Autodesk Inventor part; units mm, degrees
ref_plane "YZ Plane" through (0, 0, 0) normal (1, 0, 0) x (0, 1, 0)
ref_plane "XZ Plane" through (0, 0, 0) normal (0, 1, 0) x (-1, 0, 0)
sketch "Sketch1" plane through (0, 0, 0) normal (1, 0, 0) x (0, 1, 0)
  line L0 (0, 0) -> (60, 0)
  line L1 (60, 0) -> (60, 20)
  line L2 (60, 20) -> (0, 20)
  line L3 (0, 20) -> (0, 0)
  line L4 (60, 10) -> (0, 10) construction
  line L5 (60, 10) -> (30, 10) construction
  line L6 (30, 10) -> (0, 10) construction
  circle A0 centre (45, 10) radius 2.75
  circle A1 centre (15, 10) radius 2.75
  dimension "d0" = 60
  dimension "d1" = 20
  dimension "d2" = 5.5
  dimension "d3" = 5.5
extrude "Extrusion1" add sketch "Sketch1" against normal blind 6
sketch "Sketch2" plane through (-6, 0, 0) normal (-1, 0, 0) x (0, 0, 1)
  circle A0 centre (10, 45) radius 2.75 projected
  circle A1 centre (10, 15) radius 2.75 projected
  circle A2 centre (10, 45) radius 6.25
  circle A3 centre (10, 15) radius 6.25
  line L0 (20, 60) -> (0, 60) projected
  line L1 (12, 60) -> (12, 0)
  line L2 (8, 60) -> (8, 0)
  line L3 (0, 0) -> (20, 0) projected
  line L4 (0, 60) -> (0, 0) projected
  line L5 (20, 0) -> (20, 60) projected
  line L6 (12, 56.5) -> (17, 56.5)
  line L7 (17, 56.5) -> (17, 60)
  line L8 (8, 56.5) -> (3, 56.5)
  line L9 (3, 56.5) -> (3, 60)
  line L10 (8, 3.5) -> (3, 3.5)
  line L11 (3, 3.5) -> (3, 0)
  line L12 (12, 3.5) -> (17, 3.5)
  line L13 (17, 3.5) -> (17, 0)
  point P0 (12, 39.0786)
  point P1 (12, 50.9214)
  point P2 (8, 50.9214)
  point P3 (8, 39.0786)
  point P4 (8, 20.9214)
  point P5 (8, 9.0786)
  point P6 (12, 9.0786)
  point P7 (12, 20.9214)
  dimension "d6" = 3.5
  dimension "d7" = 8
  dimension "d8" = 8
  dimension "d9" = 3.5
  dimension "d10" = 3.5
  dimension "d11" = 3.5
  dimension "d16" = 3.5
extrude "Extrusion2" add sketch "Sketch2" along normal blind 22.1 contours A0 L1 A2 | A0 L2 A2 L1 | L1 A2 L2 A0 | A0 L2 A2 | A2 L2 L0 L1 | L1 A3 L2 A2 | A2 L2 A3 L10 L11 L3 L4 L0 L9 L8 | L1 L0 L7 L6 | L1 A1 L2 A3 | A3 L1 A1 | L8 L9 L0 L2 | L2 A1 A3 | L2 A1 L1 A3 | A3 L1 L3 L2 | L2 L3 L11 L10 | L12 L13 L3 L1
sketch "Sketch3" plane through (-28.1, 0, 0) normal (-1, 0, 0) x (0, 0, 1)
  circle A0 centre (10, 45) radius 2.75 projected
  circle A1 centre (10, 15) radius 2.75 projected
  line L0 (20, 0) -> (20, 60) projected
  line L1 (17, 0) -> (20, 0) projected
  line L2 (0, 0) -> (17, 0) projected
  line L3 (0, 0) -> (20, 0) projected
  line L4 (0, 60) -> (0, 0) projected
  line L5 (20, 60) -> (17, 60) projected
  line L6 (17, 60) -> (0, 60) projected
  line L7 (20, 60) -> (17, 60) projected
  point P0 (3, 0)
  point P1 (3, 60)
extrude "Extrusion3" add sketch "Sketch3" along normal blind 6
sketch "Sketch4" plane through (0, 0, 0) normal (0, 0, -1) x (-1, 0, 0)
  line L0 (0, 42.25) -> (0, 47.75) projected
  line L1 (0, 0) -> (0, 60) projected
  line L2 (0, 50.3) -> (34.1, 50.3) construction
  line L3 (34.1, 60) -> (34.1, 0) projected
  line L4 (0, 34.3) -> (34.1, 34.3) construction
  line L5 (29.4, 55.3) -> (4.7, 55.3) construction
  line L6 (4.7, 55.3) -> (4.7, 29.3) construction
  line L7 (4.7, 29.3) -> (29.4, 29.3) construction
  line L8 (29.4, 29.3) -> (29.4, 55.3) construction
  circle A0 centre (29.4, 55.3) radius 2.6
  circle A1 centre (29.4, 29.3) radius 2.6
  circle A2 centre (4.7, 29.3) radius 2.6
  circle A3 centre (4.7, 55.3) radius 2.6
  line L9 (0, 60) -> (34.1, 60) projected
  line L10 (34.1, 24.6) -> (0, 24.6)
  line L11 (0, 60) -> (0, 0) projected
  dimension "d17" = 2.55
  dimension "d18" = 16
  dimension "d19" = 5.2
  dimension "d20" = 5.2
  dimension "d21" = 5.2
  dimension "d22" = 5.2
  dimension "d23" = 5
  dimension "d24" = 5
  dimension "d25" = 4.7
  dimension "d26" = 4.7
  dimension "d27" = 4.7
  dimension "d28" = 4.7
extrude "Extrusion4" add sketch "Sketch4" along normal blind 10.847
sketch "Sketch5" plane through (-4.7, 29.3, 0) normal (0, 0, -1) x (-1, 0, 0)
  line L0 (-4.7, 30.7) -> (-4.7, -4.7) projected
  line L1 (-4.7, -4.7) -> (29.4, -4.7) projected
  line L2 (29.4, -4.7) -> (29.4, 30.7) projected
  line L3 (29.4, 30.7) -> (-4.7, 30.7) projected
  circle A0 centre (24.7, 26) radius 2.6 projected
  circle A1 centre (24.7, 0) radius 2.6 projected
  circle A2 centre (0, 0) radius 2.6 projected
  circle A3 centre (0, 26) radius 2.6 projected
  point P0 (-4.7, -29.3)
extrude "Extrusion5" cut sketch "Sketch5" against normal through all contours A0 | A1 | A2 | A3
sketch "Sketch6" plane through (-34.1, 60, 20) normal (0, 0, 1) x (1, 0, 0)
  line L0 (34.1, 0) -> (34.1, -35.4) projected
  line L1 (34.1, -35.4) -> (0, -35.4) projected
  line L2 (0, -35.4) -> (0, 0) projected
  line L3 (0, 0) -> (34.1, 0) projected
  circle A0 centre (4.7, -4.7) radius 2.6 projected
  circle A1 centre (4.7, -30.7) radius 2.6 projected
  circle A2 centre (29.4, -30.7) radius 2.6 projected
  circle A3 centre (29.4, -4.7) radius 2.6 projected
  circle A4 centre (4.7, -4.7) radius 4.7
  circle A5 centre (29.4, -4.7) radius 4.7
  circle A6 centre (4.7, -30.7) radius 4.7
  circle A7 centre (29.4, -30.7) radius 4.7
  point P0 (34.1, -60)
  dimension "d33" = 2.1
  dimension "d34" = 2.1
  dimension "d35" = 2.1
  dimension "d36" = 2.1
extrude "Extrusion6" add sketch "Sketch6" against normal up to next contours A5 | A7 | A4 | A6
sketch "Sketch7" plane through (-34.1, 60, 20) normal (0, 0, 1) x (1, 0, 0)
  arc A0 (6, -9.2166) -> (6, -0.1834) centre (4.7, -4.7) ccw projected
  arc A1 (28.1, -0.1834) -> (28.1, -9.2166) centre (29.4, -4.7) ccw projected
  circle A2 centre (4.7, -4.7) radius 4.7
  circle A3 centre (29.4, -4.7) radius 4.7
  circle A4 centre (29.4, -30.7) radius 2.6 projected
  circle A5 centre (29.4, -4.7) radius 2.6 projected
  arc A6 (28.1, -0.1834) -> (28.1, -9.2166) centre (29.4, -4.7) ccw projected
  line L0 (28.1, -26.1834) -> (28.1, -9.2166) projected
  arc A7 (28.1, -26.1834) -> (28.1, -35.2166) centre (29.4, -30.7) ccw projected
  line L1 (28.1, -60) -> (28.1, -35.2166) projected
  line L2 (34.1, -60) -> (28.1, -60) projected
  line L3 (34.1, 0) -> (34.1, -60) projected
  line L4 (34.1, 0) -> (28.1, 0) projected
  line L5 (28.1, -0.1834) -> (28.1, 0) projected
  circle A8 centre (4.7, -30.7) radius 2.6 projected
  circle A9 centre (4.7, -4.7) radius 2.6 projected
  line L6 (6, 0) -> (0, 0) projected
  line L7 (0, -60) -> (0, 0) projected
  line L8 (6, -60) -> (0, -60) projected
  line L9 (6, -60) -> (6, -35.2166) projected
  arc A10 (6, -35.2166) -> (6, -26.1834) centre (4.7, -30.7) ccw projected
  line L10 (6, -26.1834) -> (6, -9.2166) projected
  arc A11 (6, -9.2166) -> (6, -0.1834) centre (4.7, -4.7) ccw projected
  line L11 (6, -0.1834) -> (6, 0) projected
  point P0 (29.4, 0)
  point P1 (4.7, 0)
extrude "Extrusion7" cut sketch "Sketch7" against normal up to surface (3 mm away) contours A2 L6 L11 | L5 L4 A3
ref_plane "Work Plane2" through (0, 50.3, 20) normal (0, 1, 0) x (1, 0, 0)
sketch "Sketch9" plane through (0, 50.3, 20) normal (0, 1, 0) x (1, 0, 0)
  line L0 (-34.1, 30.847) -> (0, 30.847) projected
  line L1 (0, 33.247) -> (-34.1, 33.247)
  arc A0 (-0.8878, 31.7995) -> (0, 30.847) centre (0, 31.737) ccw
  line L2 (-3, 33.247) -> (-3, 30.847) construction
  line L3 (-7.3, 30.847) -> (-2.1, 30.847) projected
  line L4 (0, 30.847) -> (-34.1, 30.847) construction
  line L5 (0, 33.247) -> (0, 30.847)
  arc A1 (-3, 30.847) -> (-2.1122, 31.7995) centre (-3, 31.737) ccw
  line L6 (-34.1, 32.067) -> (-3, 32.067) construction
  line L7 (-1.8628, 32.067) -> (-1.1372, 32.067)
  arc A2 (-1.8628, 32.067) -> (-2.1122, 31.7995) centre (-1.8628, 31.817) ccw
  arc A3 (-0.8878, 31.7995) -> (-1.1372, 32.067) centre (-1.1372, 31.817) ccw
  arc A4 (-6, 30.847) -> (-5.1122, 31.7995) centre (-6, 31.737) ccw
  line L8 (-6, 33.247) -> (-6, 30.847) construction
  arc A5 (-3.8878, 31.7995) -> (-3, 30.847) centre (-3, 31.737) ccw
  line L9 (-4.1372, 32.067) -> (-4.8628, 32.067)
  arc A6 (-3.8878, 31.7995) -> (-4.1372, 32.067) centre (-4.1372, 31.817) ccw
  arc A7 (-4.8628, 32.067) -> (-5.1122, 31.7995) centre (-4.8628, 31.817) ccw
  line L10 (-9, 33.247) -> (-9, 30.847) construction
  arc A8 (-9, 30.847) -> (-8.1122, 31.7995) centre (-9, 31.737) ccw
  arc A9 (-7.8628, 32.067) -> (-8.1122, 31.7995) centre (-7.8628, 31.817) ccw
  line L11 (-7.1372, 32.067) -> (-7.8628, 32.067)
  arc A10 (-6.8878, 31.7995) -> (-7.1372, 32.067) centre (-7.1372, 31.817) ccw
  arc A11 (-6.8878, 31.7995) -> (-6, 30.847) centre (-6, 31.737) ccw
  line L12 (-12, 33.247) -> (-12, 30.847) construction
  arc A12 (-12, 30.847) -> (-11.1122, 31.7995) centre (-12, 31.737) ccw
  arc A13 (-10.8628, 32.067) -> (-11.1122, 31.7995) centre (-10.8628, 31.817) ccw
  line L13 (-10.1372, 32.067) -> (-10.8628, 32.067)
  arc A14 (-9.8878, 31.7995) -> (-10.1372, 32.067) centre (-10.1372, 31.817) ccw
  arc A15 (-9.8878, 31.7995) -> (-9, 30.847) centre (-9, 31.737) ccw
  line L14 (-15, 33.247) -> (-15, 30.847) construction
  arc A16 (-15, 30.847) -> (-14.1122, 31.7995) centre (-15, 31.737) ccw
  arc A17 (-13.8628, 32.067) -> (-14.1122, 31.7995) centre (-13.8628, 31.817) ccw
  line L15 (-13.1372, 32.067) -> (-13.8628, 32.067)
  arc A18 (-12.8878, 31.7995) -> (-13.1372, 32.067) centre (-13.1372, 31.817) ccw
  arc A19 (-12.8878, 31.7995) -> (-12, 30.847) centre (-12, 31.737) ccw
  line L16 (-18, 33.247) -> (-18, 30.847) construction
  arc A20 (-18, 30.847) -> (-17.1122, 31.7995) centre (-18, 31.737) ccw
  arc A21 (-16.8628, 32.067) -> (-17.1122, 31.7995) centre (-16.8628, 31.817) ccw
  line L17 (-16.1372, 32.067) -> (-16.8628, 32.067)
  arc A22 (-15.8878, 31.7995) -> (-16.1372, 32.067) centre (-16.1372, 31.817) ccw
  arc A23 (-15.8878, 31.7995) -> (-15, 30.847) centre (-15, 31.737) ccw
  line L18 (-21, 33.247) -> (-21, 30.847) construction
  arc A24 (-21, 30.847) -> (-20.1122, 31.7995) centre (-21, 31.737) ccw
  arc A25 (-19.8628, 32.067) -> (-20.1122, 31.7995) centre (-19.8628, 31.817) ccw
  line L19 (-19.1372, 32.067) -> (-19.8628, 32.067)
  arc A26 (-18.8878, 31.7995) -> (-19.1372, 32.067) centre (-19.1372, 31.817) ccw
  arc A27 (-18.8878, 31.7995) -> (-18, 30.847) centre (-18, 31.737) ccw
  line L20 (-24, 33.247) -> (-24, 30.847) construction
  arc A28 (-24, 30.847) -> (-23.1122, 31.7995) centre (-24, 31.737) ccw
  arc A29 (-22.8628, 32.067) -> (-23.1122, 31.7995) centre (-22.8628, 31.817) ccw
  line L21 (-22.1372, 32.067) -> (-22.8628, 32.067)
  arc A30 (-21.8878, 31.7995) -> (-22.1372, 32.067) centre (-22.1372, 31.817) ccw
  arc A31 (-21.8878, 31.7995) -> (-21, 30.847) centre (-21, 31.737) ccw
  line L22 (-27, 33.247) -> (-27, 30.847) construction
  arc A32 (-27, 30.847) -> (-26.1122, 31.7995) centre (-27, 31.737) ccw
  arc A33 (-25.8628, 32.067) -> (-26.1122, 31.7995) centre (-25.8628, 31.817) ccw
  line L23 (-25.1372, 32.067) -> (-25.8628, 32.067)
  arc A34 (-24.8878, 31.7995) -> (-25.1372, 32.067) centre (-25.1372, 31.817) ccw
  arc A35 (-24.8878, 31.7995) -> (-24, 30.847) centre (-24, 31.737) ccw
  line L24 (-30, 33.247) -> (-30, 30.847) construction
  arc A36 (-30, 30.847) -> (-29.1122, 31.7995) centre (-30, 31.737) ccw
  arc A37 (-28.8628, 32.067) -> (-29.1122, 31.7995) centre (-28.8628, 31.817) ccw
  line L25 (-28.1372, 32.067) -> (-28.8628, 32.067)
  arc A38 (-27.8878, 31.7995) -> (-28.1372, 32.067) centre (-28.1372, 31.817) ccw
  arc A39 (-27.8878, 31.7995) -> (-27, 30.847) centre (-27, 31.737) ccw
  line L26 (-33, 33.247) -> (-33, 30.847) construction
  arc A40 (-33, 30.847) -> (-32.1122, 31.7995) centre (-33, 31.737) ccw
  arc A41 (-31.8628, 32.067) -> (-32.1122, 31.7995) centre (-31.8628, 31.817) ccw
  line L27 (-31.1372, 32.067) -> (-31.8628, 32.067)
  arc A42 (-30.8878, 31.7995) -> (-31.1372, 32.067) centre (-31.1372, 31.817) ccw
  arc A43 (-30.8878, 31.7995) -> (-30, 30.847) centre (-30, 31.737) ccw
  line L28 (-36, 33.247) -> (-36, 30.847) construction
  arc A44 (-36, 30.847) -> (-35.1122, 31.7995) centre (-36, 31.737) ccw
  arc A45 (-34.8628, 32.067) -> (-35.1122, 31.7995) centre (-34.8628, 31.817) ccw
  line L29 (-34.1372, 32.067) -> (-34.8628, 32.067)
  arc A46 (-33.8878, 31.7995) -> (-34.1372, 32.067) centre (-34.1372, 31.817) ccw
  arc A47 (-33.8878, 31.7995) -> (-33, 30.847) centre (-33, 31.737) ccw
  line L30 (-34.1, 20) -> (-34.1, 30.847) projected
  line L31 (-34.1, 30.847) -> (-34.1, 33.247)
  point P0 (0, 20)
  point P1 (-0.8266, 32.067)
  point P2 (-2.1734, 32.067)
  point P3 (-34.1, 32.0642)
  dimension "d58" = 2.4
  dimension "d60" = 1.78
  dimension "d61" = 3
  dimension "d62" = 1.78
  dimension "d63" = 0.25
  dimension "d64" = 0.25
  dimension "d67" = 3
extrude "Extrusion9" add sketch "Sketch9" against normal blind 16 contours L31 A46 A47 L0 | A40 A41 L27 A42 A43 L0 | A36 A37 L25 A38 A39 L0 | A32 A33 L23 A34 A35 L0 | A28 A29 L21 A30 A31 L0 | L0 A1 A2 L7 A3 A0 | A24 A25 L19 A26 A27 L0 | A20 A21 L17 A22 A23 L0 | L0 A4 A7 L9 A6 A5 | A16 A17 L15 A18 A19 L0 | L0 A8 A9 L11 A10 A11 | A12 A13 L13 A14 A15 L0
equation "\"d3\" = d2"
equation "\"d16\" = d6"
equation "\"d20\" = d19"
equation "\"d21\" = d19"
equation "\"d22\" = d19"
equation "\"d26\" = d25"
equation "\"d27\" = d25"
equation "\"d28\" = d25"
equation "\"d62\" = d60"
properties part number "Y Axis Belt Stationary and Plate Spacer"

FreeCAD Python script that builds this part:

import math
import FreeCAD as App
import Part
import Sketcher
Q = App.Units.Quantity


def add_polygon(sketch, points):
    """Adds a closed chain of lines whose ends are joined by coincident constraints."""
    first, n = sketch.GeometryCount, len(points)
    for a, b in zip(points, points[1:] + points[:1]):
        sketch.addGeometry(Part.LineSegment(App.Vector(*a, 0), App.Vector(*b, 0)), False)
    for i in range(n):
        sketch.addConstraint(Sketcher.Constraint("Coincident", first + i, 2, first + (i + 1) % n, 1))

doc = App.newDocument("Part")
body = doc.addObject("PartDesign::Body", "Body")

sketch1 = body.newObject("Sketcher::SketchObject", "Sketch")
sketch1.AttachmentSupport = (doc.getObject("YZ_Plane"), [""])
sketch1.MapMode = "FlatFace"
add_polygon(sketch1, [(0, 20), (0, 0), (60, 0), (60, 20)])
sketch1.addGeometry(Part.Circle(App.Vector(15, 10, 0), App.Vector(0, 0, 1), 2.75), False)
sketch1.addGeometry(Part.Circle(App.Vector(45, 10, 0), App.Vector(0, 0, 1), 2.75), False)
sketch1.addConstraint([
    Sketcher.Constraint("Vertical", 0),
    Sketcher.Constraint("Horizontal", 1),
    Sketcher.Constraint("Vertical", 2),
    Sketcher.Constraint("Horizontal", 3),
    Sketcher.Constraint("Coincident", 0, 2, -1, 1),
    Sketcher.Constraint("Equal", 4, 5),
    Sketcher.Constraint("Horizontal", 4, 3, 5, 3),
    Sketcher.Constraint("Diameter", 4, Q("5.5 mm")),
    Sketcher.Constraint("DistanceX", 1, 1, 1, 2, Q("60 mm")),
    Sketcher.Constraint("DistanceY", 0, 2, 0, 1, Q("20 mm")),
    Sketcher.Constraint("DistanceX", -1, 1, 4, 3, Q("15 mm")),
    Sketcher.Constraint("DistanceY", -1, 1, 4, 3, Q("10 mm")),
    Sketcher.Constraint("DistanceX", -1, 1, 5, 3, Q("45 mm")),
])
pad1 = body.newObject("PartDesign::Pad", "Pad")
pad1.Profile = sketch1
pad1.Length = 6
pad1.Reversed = True

sketch2 = body.newObject("Sketcher::SketchObject", "Sketch001")
sketch2.AttachmentSupport = (doc.getObject("YZ_Plane"), [""])
sketch2.MapMode = "FlatFace"
sketch2.AttachmentOffset = App.Placement(App.Vector(0, 0, -6), App.Rotation())
sketch2.addGeometry([
    Part.LineSegment(App.Vector(50.92136, 12, 0), App.Vector(56.5, 12, 0)),
    Part.LineSegment(App.Vector(56.5, 12, 0), App.Vector(56.5, 17, 0)),
    Part.LineSegment(App.Vector(56.5, 17, 0), App.Vector(60, 17, 0)),
    Part.LineSegment(App.Vector(60, 17, 0), App.Vector(60, 0, 0)),
    Part.LineSegment(App.Vector(60, 0, 0), App.Vector(0, 0, 0)),
    Part.LineSegment(App.Vector(0, 0, 0), App.Vector(0, 17, 0)),
    Part.LineSegment(App.Vector(0, 17, 0), App.Vector(3.5, 17, 0)),
    Part.LineSegment(App.Vector(3.5, 17, 0), App.Vector(3.5, 12, 0)),
    Part.LineSegment(App.Vector(3.5, 12, 0), App.Vector(9.07864, 12, 0)),
    Part.ArcOfCircle(Part.Circle(App.Vector(15, 10, 0), App.Vector(0, 0, 1), 6.25), math.radians(18.662925), math.radians(161.337075)),
    Part.LineSegment(App.Vector(20.92136, 12, 0), App.Vector(39.07864, 12, 0)),
    Part.ArcOfCircle(Part.Circle(App.Vector(45, 10, 0), App.Vector(0, 0, 1), 6.25), math.radians(18.662925), math.radians(161.337075)),
    Part.Circle(App.Vector(45, 10, 0), App.Vector(0, 0, 1), 2.75),
    Part.Circle(App.Vector(15, 10, 0), App.Vector(0, 0, 1), 2.75),
], False)
sketch2.addConstraint([
    Sketcher.Constraint("Coincident", 0, 2, 1, 1),
    Sketcher.Constraint("Coincident", 1, 2, 2, 1),
    Sketcher.Constraint("Coincident", 2, 2, 3, 1),
    Sketcher.Constraint("Coincident", 3, 2, 4, 1),
    Sketcher.Constraint("Coincident", 4, 2, 5, 1),
    Sketcher.Constraint("Coincident", 5, 2, 6, 1),
    Sketcher.Constraint("Coincident", 6, 2, 7, 1),
    Sketcher.Constraint("Coincident", 7, 2, 8, 1),
    Sketcher.Constraint("Coincident", 8, 2, 9, 2),
    Sketcher.Constraint("Coincident", 9, 1, 10, 1),
    Sketcher.Constraint("Coincident", 10, 2, 11, 2),
    Sketcher.Constraint("Coincident", 11, 1, 0, 1),
    Sketcher.Constraint("Horizontal", 0),
    Sketcher.Constraint("Vertical", 1),
    Sketcher.Constraint("Horizontal", 2),
    Sketcher.Constraint("Vertical", 3),
    Sketcher.Constraint("Horizontal", 4),
    Sketcher.Constraint("Vertical", 5),
    Sketcher.Constraint("Horizontal", 6),
    Sketcher.Constraint("Vertical", 7),
    Sketcher.Constraint("Horizontal", 8),
    Sketcher.Constraint("Horizontal", 10),
    Sketcher.Constraint("Coincident", 4, 2, -1, 1),
    Sketcher.Constraint("Coincident", 12, 3, 11, 3),
    Sketcher.Constraint("Coincident", 13, 3, 9, 3),
    Sketcher.Constraint("Equal", 9, 11),
    Sketcher.Constraint("Equal", 12, 13),
    Sketcher.Constraint("Horizontal", 9, 3, 11, 3),
    Sketcher.Constraint("Horizontal", 2, 2, 5, 2),
    Sketcher.Constraint("Horizontal", 0, 2, 7, 2),
    Sketcher.Constraint("Horizontal", 8, 2, 9, 1),
    Sketcher.Constraint("Equal", 2, 6),
    Sketcher.Constraint("Equal", 0, 8),
    Sketcher.Constraint("DistanceX", 2, 1, 2, 2, Q("3.5 mm")),
    Sketcher.Constraint("Diameter", 12, Q("5.5 mm")),
    Sketcher.Constraint("DistanceX", 4, 2, 4, 1, Q("60 mm")),
    Sketcher.Constraint("DistanceY", 1, 1, 1, 2, Q("5 mm")),
    Sketcher.Constraint("DistanceY", 3, 2, 3, 1, Q("17 mm")),
    Sketcher.Constraint("Radius", 9, Q("6.25 mm")),
    Sketcher.Constraint("DistanceX", -1, 1, 9, 3, Q("15 mm")),
    Sketcher.Constraint("DistanceY", -1, 1, 9, 3, Q("10 mm")),
])
pad2 = body.newObject("PartDesign::Pad", "Pad001")
pad2.Profile = sketch2
pad2.Length = 22.1
pad2.Reversed = True

sketch3 = body.newObject("Sketcher::SketchObject", "Sketch002")
sketch3.AttachmentSupport = (doc.getObject("YZ_Plane"), [""])
sketch3.MapMode = "FlatFace"
sketch3.AttachmentOffset = App.Placement(App.Vector(0, 0, -28.1), App.Rotation())
add_polygon(sketch3, [(0, 0), (0, 20), (60, 20), (60, 0)])
sketch3.addGeometry(Part.Circle(App.Vector(15, 10, 0), App.Vector(0, 0, 1), 2.75), False)
sketch3.addGeometry(Part.Circle(App.Vector(45, 10, 0), App.Vector(0, 0, 1), 2.75), False)
sketch3.addConstraint([
    Sketcher.Constraint("Vertical", 0),
    Sketcher.Constraint("Horizontal", 1),
    Sketcher.Constraint("Vertical", 2),
    Sketcher.Constraint("Horizontal", 3),
    Sketcher.Constraint("Coincident", 3, 2, -1, 1),
    Sketcher.Constraint("Equal", 4, 5),
    Sketcher.Constraint("Horizontal", 4, 3, 5, 3),
    Sketcher.Constraint("Diameter", 4, Q("5.5 mm")),
    Sketcher.Constraint("DistanceX", 1, 1, 1, 2, Q("60 mm")),
    Sketcher.Constraint("DistanceY", 0, 1, 0, 2, Q("20 mm")),
    Sketcher.Constraint("DistanceX", -1, 1, 4, 3, Q("15 mm")),
    Sketcher.Constraint("DistanceY", -1, 1, 4, 3, Q("10 mm")),
    Sketcher.Constraint("DistanceX", -1, 1, 5, 3, Q("45 mm")),
])
pad3 = body.newObject("PartDesign::Pad", "Pad002")
pad3.Profile = sketch3
pad3.Length = 6
pad3.Reversed = True

sketch4 = body.newObject("Sketcher::SketchObject", "Sketch003")
sketch4.AttachmentSupport = (doc.getObject("XY_Plane"), [""])
sketch4.MapMode = "FlatFace"
add_polygon(sketch4, [(0, 60), (0, 24.6), (-34.1, 24.6), (-34.1, 60)])
sketch4.addGeometry(Part.Circle(App.Vector(-4.7, 29.3, 0), App.Vector(0, 0, 1), 2.6), False)
sketch4.addGeometry(Part.Circle(App.Vector(-29.4, 29.3, 0), App.Vector(0, 0, 1), 2.6), False)
sketch4.addGeometry(Part.Circle(App.Vector(-4.7, 55.3, 0), App.Vector(0, 0, 1), 2.6), False)
sketch4.addGeometry(Part.Circle(App.Vector(-29.4, 55.3, 0), App.Vector(0, 0, 1), 2.6), False)
sketch4.addConstraint([
    Sketcher.Constraint("Vertical", 0),
    Sketcher.Constraint("Horizontal", 1),
    Sketcher.Constraint("Vertical", 2),
    Sketcher.Constraint("Horizontal", 3),
    Sketcher.Constraint("Equal", 4, 5),
    Sketcher.Constraint("Equal", 5, 6),
    Sketcher.Constraint("Equal", 6, 7),
    Sketcher.Constraint("PointOnObject", 0, 2, -2),
    Sketcher.Constraint("Horizontal", 4, 3, 5, 3),
    Sketcher.Constraint("Horizontal", 6, 3, 7, 3),
    Sketcher.Constraint("Vertical", 4, 3, 6, 3),
    Sketcher.Constraint("Vertical", 5, 3, 7, 3),
    Sketcher.Constraint("Diameter", 4, Q("5.2 mm")),
    Sketcher.Constraint("DistanceX", 4, 3, -1, 1, Q("4.7 mm")),
    Sketcher.Constraint("DistanceY", 0, 2, 4, 3, Q("4.7 mm")),
    Sketcher.Constraint("DistanceX", 1, 2, 5, 3, Q("4.7 mm")),
    Sketcher.Constraint("DistanceY", 7, 3, 2, 2, Q("4.7 mm")),
    Sketcher.Constraint("DistanceX", 1, 2, 1, 1, Q("34.1 mm")),
    Sketcher.Constraint("DistanceY", 0, 2, 0, 1, Q("35.4 mm")),
    Sketcher.Constraint("DistanceY", -1, 1, 2, 2, Q("60 mm")),
])
pad4 = body.newObject("PartDesign::Pad", "Pad003")
pad4.Profile = sketch4
pad4.Length = 10.847
pad4.Reversed = True

sketch5 = body.newObject("Sketcher::SketchObject", "Sketch004")
sketch5.AttachmentSupport = (doc.getObject("XY_Plane"), [""])
sketch5.MapMode = "FlatFace"
sketch5.addGeometry([
    Part.Circle(App.Vector(-29.4, 55.3, 0), App.Vector(0, 0, 1), 2.6),
    Part.Circle(App.Vector(-29.4, 29.3, 0), App.Vector(0, 0, 1), 2.6),
    Part.Circle(App.Vector(-4.7, 29.3, 0), App.Vector(0, 0, 1), 2.6),
    Part.Circle(App.Vector(-4.7, 55.3, 0), App.Vector(0, 0, 1), 2.6),
], False)
sketch5.addConstraint([
    Sketcher.Constraint("Equal", 0, 1),
    Sketcher.Constraint("Equal", 1, 2),
    Sketcher.Constraint("Equal", 2, 3),
    Sketcher.Constraint("Horizontal", 1, 3, 2, 3),
    Sketcher.Constraint("Horizontal", 0, 3, 3, 3),
    Sketcher.Constraint("Vertical", 0, 3, 1, 3),
    Sketcher.Constraint("Vertical", 2, 3, 3, 3),
    Sketcher.Constraint("Diameter", 0, Q("5.2 mm")),
    Sketcher.Constraint("DistanceY", 1, 3, 0, 3, Q("26 mm")),
    Sketcher.Constraint("DistanceX", 0, 3, -1, 1, Q("29.4 mm")),
    Sketcher.Constraint("DistanceY", -1, 1, 0, 3, Q("55.3 mm")),
    Sketcher.Constraint("DistanceX", 2, 3, -1, 1, Q("4.7 mm")),
])
pocket1 = body.newObject("PartDesign::Pocket", "Pocket")
pocket1.Profile = sketch5
pocket1.Type = "ThroughAll"
pocket1.Reversed = True

sketch6 = body.newObject("Sketcher::SketchObject", "Sketch005")
sketch6.AttachmentSupport = (doc.getObject("XY_Plane"), [""])
sketch6.MapMode = "FlatFace"
sketch6.AttachmentOffset = App.Placement(App.Vector(0, 0, 20), App.Rotation())
sketch6.addGeometry([
    Part.Circle(App.Vector(-4.7, 55.3, 0), App.Vector(0, 0, 1), 4.7),
    Part.Circle(App.Vector(-4.7, 55.3, 0), App.Vector(0, 0, 1), 2.6),
    Part.Circle(App.Vector(-4.7, 29.3, 0), App.Vector(0, 0, 1), 4.7),
    Part.Circle(App.Vector(-4.7, 29.3, 0), App.Vector(0, 0, 1), 2.6),
    Part.Circle(App.Vector(-29.4, 55.3, 0), App.Vector(0, 0, 1), 4.7),
    Part.Circle(App.Vector(-29.4, 55.3, 0), App.Vector(0, 0, 1), 2.6),
    Part.Circle(App.Vector(-29.4, 29.3, 0), App.Vector(0, 0, 1), 4.7),
    Part.Circle(App.Vector(-29.4, 29.3, 0), App.Vector(0, 0, 1), 2.6),
], False)
sketch6.addConstraint([
    Sketcher.Constraint("Coincident", 1, 3, 0, 3),
    Sketcher.Constraint("Coincident", 3, 3, 2, 3),
    Sketcher.Constraint("Coincident", 5, 3, 4, 3),
    Sketcher.Constraint("Coincident", 7, 3, 6, 3),
    Sketcher.Constraint("Equal", 0, 2),
    Sketcher.Constraint("Equal", 1, 3),
    Sketcher.Constraint("Equal", 2, 4),
    Sketcher.Constraint("Equal", 3, 5),
    Sketcher.Constraint("Equal", 4, 6),
    Sketcher.Constraint("Equal", 5, 7),
    Sketcher.Constraint("Horizontal", 1, 3, 4, 3),
    Sketcher.Constraint("Horizontal", 3, 3, 6, 3),
    Sketcher.Constraint("Vertical", 1, 3, 2, 3),
    Sketcher.Constraint("Vertical", 5, 3, 6, 3),
    Sketcher.Constraint("Diameter", 0, Q("9.4 mm")),
    Sketcher.Constraint("Diameter", 1, Q("5.2 mm")),
    Sketcher.Constraint("DistanceY", 2, 3, 0, 3, Q("26 mm")),
    Sketcher.Constraint("DistanceX", 0, 3, -1, 1, Q("4.7 mm")),
    Sketcher.Constraint("DistanceY", -1, 1, 0, 3, Q("55.3 mm")),
    Sketcher.Constraint("DistanceX", 4, 3, -1, 1, Q("29.4 mm")),
])
pad5 = body.newObject("PartDesign::Pad", "Pad004")
pad5.Profile = sketch6
pad5.Length = 8
pad5.Reversed = True

sketch7 = body.newObject("Sketcher::SketchObject", "Sketch006")
sketch7.AttachmentSupport = (doc.getObject("XY_Plane"), [""])
sketch7.MapMode = "FlatFace"
sketch7.AttachmentOffset = App.Placement(App.Vector(0, 0, 20), App.Rotation())
sketch7.addGeometry([
    Part.ArcOfCircle(Part.Circle(App.Vector(-29.4, 55.3, 0), App.Vector(0, 0, 1), 4.7), math.radians(73.942746), math.radians(90)),
    Part.LineSegment(App.Vector(-28.1, 59.8166, 0), App.Vector(-28.1, 60, 0)),
    Part.LineSegment(App.Vector(-28.1, 60, 0), App.Vector(-29.4, 60, 0)),
    Part.LineSegment(App.Vector(-6, 60, 0), App.Vector(-6, 59.8166, 0)),
    Part.ArcOfCircle(Part.Circle(App.Vector(-4.7, 55.3, 0), App.Vector(0, 0, 1), 4.7), math.radians(90), math.radians(106.057254)),
    Part.LineSegment(App.Vector(-4.7, 60, 0), App.Vector(-6, 60, 0)),
], False)
sketch7.addConstraint([
    Sketcher.Constraint("Coincident", 0, 1, 1, 1),
    Sketcher.Constraint("Coincident", 1, 2, 2, 1),
    Sketcher.Constraint("Tangent", 2, 2, 0, 2),
    Sketcher.Constraint("Coincident", 3, 2, 4, 2),
    Sketcher.Constraint("Tangent", 4, 1, 5, 1),
    Sketcher.Constraint("Coincident", 5, 2, 3, 1),
    Sketcher.Constraint("Vertical", 1),
    Sketcher.Constraint("Horizontal", 2),
    Sketcher.Constraint("Vertical", 3),
    Sketcher.Constraint("Horizontal", 5),
    Sketcher.Constraint("Equal", 0, 4),
    Sketcher.Constraint("Horizontal", 0, 3, 4, 3),
    Sketcher.Constraint("Horizontal", 0, 1, 3, 2),
    Sketcher.Constraint("Radius", 0, Q("4.7 mm")),
    Sketcher.Constraint("DistanceX", 2, 2, 2, 1, Q("1.3 mm")),
    Sketcher.Constraint("DistanceY", -1, 1, 1, 2, Q("60 mm")),
    Sketcher.Constraint("DistanceX", 3, 2, -1, 1, Q("6 mm")),
    Sketcher.Constraint("DistanceX", 0, 3, -1, 1, Q("29.4 mm")),
])
pocket2 = body.newObject("PartDesign::Pocket", "Pocket001")
pocket2.Profile = sketch7
pocket2.Length = 3

sketch8 = body.newObject("Sketcher::SketchObject", "Sketch007")
sketch8.AttachmentSupport = (doc.getObject("XZ_Plane"), [""])
sketch8.MapMode = "FlatFace"
sketch8.AttachmentOffset = App.Placement(App.Vector(0, 0, -50.3), App.Rotation())
sketch8.addGeometry([
    Part.LineSegment(App.Vector(-34.1, -12.06422, 0), App.Vector(-34.1, -10.847, 0)),
    Part.LineSegment(App.Vector(-34.1, -10.847, 0), App.Vector(-33, -10.847, 0)),
    Part.ArcOfCircle(Part.Circle(App.Vector(-33, -11.737, 0), App.Vector(0, 0, 1), 0.89), math.radians(90), math.radians(184.026907)),
    Part.ArcOfCircle(Part.Circle(App.Vector(-34.1372, -11.817, 0), App.Vector(0, 0, 1), 0.250013), math.radians(-81.442715), math.radians(4.013775)),
    Part.ArcOfCircle(Part.Circle(App.Vector(-33, -11.737, 0), App.Vector(0, 0, 1), 0.889997), math.radians(-4.026907), math.radians(90)),
    Part.LineSegment(App.Vector(-33, -10.847, 0), App.Vector(-30, -10.847, 0)),
    Part.ArcOfCircle(Part.Circle(App.Vector(-30, -11.737, 0), App.Vector(0, 0, 1), 0.89), math.radians(90), math.radians(184.026907)),
    Part.ArcOfCircle(Part.Circle(App.Vector(-31.1372, -11.817, 0), App.Vector(0, 0, 1), 0.250013), math.radians(-90), math.radians(4.013775)),
    Part.LineSegment(App.Vector(-31.1372, -12.067, 0), App.Vector(-31.8628, -12.067, 0)),
    Part.ArcOfCircle(Part.Circle(App.Vector(-31.8628, -11.817, 0), App.Vector(0, 0, 1), 0.25), math.radians(175.986225), math.radians(270)),
    Part.ArcOfCircle(Part.Circle(App.Vector(-30, -11.737, 0), App.Vector(0, 0, 1), 0.889997), math.radians(-4.026907), math.radians(90)),
    Part.LineSegment(App.Vector(-30, -10.847, 0), App.Vector(-27, -10.847, 0)),
    Part.ArcOfCircle(Part.Circle(App.Vector(-27, -11.737, 0), App.Vector(0, 0, 1), 0.89), math.radians(90), math.radians(184.026907)),
    Part.ArcOfCircle(Part.Circle(App.Vector(-28.1372, -11.817, 0), App.Vector(0, 0, 1), 0.250013), math.radians(-90), math.radians(4.013775)),
    Part.LineSegment(App.Vector(-28.1372, -12.067, 0), App.Vector(-28.8628, -12.067, 0)),
    Part.ArcOfCircle(Part.Circle(App.Vector(-28.8628, -11.817, 0), App.Vector(0, 0, 1), 0.25), math.radians(175.986225), math.radians(270)),
    Part.ArcOfCircle(Part.Circle(App.Vector(-27, -11.737, 0), App.Vector(0, 0, 1), 0.889997), math.radians(-4.026907), math.radians(90)),
    Part.LineSegment(App.Vector(-27, -10.847, 0), App.Vector(-24, -10.847, 0)),
    Part.ArcOfCircle(Part.Circle(App.Vector(-24, -11.737, 0), App.Vector(0, 0, 1), 0.89), math.radians(90), math.radians(184.026907)),
    Part.ArcOfCircle(Part.Circle(App.Vector(-25.1372, -11.817, 0), App.Vector(0, 0, 1), 0.250013), math.radians(-90), math.radians(4.013775)),
    Part.LineSegment(App.Vector(-25.1372, -12.067, 0), App.Vector(-25.8628, -12.067, 0)),
    Part.ArcOfCircle(Part.Circle(App.Vector(-25.8628, -11.817, 0), App.Vector(0, 0, 1), 0.25), math.radians(175.986225), math.radians(270)),
    Part.ArcOfCircle(Part.Circle(App.Vector(-24, -11.737, 0), App.Vector(0, 0, 1), 0.889997), math.radians(-4.026907), math.radians(90)),
    Part.LineSegment(App.Vector(-24, -10.847, 0), App.Vector(-21, -10.847, 0)),
    Part.ArcOfCircle(Part.Circle(App.Vector(-21, -11.737, 0), App.Vector(0, 0, 1), 0.89), math.radians(90), math.radians(184.026907)),
    Part.ArcOfCircle(Part.Circle(App.Vector(-22.1372, -11.817, 0), App.Vector(0, 0, 1), 0.250013), math.radians(-90), math.radians(4.013775)),
    Part.LineSegment(App.Vector(-22.1372, -12.067, 0), App.Vector(-22.8628, -12.067, 0)),
    Part.ArcOfCircle(Part.Circle(App.Vector(-22.8628, -11.817, 0), App.Vector(0, 0, 1), 0.25), math.radians(175.986225), math.radians(270)),
    Part.LineSegment(App.Vector(-3, -10.847, 0), App.Vector(0, -10.847, 0)),
    Part.ArcOfCircle(Part.Circle(App.Vector(0, -11.737, 0), App.Vector(0, 0, 1), 0.889997), math.radians(90), math.radians(184.026907)),
    Part.ArcOfCircle(Part.Circle(App.Vector(-1.1372, -11.817, 0), App.Vector(0, 0, 1), 0.250013), math.radians(-90), math.radians(4.013775)),
    Part.LineSegment(App.Vector(-1.1372, -12.067, 0), App.Vector(-1.8628, -12.067, 0)),
    Part.ArcOfCircle(Part.Circle(App.Vector(-1.8628, -11.817, 0), App.Vector(0, 0, 1), 0.25), math.radians(175.986225), math.radians(270)),
    Part.ArcOfCircle(Part.Circle(App.Vector(-3, -11.737, 0), App.Vector(0, 0, 1), 0.889997), math.radians(-4.026907), math.radians(90)),
    Part.ArcOfCircle(Part.Circle(App.Vector(-21, -11.737, 0), App.Vector(0, 0, 1), 0.889997), math.radians(-4.026907), math.radians(90)),
    Part.LineSegment(App.Vector(-21, -10.847, 0), App.Vector(-18, -10.847, 0)),
    Part.ArcOfCircle(Part.Circle(App.Vector(-18, -11.737, 0), App.Vector(0, 0, 1), 0.89), math.radians(90), math.radians(184.026907)),
    Part.ArcOfCircle(Part.Circle(App.Vector(-19.1372, -11.817, 0), App.Vector(0, 0, 1), 0.250013), math.radians(-90), math.radians(4.013775)),
    Part.LineSegment(App.Vector(-19.1372, -12.067, 0), App.Vector(-19.8628, -12.067, 0)),
    Part.ArcOfCircle(Part.Circle(App.Vector(-19.8628, -11.817, 0), App.Vector(0, 0, 1), 0.25), math.radians(175.986225), math.radians(270)),
    Part.ArcOfCircle(Part.Circle(App.Vector(-18, -11.737, 0), App.Vector(0, 0, 1), 0.889997), math.radians(-4.026907), math.radians(90)),
    Part.LineSegment(App.Vector(-18, -10.847, 0), App.Vector(-15, -10.847, 0)),
    Part.ArcOfCircle(Part.Circle(App.Vector(-15, -11.737, 0), App.Vector(0, 0, 1), 0.89), math.radians(90), math.radians(184.026907)),
    Part.ArcOfCircle(Part.Circle(App.Vector(-16.1372, -11.817, 0), App.Vector(0, 0, 1), 0.250013), math.radians(-90), math.radians(4.013775)),
    Part.LineSegment(App.Vector(-16.1372, -12.067, 0), App.Vector(-16.8628, -12.067, 0)),
    Part.ArcOfCircle(Part.Circle(App.Vector(-16.8628, -11.817, 0), App.Vector(0, 0, 1), 0.25), math.radians(175.986225), math.radians(270)),
    Part.LineSegment(App.Vector(-6, -10.847, 0), App.Vector(-3, -10.847, 0)),
    Part.ArcOfCircle(Part.Circle(App.Vector(-3, -11.737, 0), App.Vector(0, 0, 1), 0.89), math.radians(90), math.radians(184.026907)),
    Part.ArcOfCircle(Part.Circle(App.Vector(-4.1372, -11.817, 0), App.Vector(0, 0, 1), 0.250013), math.radians(-90), math.radians(4.013775)),
    Part.LineSegment(App.Vector(-4.1372, -12.067, 0), App.Vector(-4.8628, -12.067, 0)),
    Part.ArcOfCircle(Part.Circle(App.Vector(-4.8628, -11.817, 0), App.Vector(0, 0, 1), 0.25), math.radians(175.986225), math.radians(270)),
    Part.ArcOfCircle(Part.Circle(App.Vector(-6, -11.737, 0), App.Vector(0, 0, 1), 0.889997), math.radians(-4.026907), math.radians(90)),
    Part.ArcOfCircle(Part.Circle(App.Vector(-15, -11.737, 0), App.Vector(0, 0, 1), 0.889997), math.radians(-4.026907), math.radians(90)),
    Part.LineSegment(App.Vector(-15, -10.847, 0), App.Vector(-12, -10.847, 0)),
    Part.ArcOfCircle(Part.Circle(App.Vector(-12, -11.737, 0), App.Vector(0, 0, 1), 0.89), math.radians(90), math.radians(184.026907)),
    Part.ArcOfCircle(Part.Circle(App.Vector(-13.1372, -11.817, 0), App.Vector(0, 0, 1), 0.250013), math.radians(-90), math.radians(4.013775)),
    Part.LineSegment(App.Vector(-13.1372, -12.067, 0), App.Vector(-13.8628, -12.067, 0)),
    Part.ArcOfCircle(Part.Circle(App.Vector(-13.8628, -11.817, 0), App.Vector(0, 0, 1), 0.25), math.radians(175.986225), math.radians(270)),
    Part.LineSegment(App.Vector(-9, -10.847, 0), App.Vector(-6, -10.847, 0)),
    Part.ArcOfCircle(Part.Circle(App.Vector(-6, -11.737, 0), App.Vector(0, 0, 1), 0.89), math.radians(90), math.radians(184.026907)),
    Part.ArcOfCircle(Part.Circle(App.Vector(-7.1372, -11.817, 0), App.Vector(0, 0, 1), 0.250013), math.radians(-90), math.radians(4.013775)),
    Part.LineSegment(App.Vector(-7.1372, -12.067, 0), App.Vector(-7.8628, -12.067, 0)),
    Part.ArcOfCircle(Part.Circle(App.Vector(-7.8628, -11.817, 0), App.Vector(0, 0, 1), 0.25), math.radians(175.986225), math.radians(270)),
    Part.ArcOfCircle(Part.Circle(App.Vector(-9, -11.737, 0), App.Vector(0, 0, 1), 0.889997), math.radians(-4.026907), math.radians(90)),
    Part.ArcOfCircle(Part.Circle(App.Vector(-12, -11.737, 0), App.Vector(0, 0, 1), 0.889997), math.radians(-4.026907), math.radians(90)),
    Part.LineSegment(App.Vector(-12, -10.847, 0), App.Vector(-9, -10.847, 0)),
    Part.ArcOfCircle(Part.Circle(App.Vector(-9, -11.737, 0), App.Vector(0, 0, 1), 0.89), math.radians(90), math.radians(184.026907)),
    Part.ArcOfCircle(Part.Circle(App.Vector(-10.1372, -11.817, 0), App.Vector(0, 0, 1), 0.250013), math.radians(-90), math.radians(4.013775)),
    Part.LineSegment(App.Vector(-10.1372, -12.067, 0), App.Vector(-10.8628, -12.067, 0)),
    Part.ArcOfCircle(Part.Circle(App.Vector(-10.8628, -11.817, 0), App.Vector(0, 0, 1), 0.25), math.radians(175.986225), math.radians(270)),
], False)
sketch8.addConstraint([
    Sketcher.Constraint("Coincident", 0, 2, 1, 1),
    Sketcher.Constraint("Tangent", 1, 2, 2, 1),
    Sketcher.Constraint("Tangent", 2, 2, 3, 2),
    Sketcher.Constraint("Coincident", 3, 1, 0, 1),
    Sketcher.Constraint("Tangent", 4, 2, 5, 1),
    Sketcher.Constraint("Tangent", 5, 2, 6, 1),
    Sketcher.Constraint("Tangent", 6, 2, 7, 2),
    Sketcher.Constraint("Tangent", 7, 1, 8, 1),
    Sketcher.Constraint("Tangent", 8, 2, 9, 2),
    Sketcher.Constraint("Tangent", 9, 1, 4, 1),
    Sketcher.Constraint("Tangent", 10, 2, 11, 1),
    Sketcher.Constraint("Tangent", 11, 2, 12, 1),
    Sketcher.Constraint("Tangent", 12, 2, 13, 2),
    Sketcher.Constraint("Tangent", 13, 1, 14, 1),
    Sketcher.Constraint("Tangent", 14, 2, 15, 2),
    Sketcher.Constraint("Tangent", 15, 1, 10, 1),
    Sketcher.Constraint("Tangent", 16, 2, 17, 1),
    Sketcher.Constraint("Tangent", 17, 2, 18, 1),
    Sketcher.Constraint("Tangent", 18, 2, 19, 2),
    Sketcher.Constraint("Tangent", 19, 1, 20, 1),
    Sketcher.Constraint("Tangent", 20, 2, 21, 2),
    Sketcher.Constraint("Tangent", 21, 1, 16, 1),
    Sketcher.Constraint("Tangent", 22, 2, 23, 1),
    Sketcher.Constraint("Tangent", 23, 2, 24, 1),
    Sketcher.Constraint("Tangent", 24, 2, 25, 2),
    Sketcher.Constraint("Tangent", 25, 1, 26, 1),
    Sketcher.Constraint("Tangent", 26, 2, 27, 2),
    Sketcher.Constraint("Tangent", 27, 1, 22, 1),
    Sketcher.Constraint("Tangent", 28, 2, 29, 1),
    Sketcher.Constraint("Tangent", 29, 2, 30, 2),
    Sketcher.Constraint("Tangent", 30, 1, 31, 1),
    Sketcher.Constraint("Tangent", 31, 2, 32, 2),
    Sketcher.Constraint("Tangent", 32, 1, 33, 1),
    Sketcher.Constraint("Tangent", 33, 2, 28, 1),
    Sketcher.Constraint("Tangent", 34, 2, 35, 1),
    Sketcher.Constraint("Tangent", 35, 2, 36, 1),
    Sketcher.Constraint("Tangent", 36, 2, 37, 2),
    Sketcher.Constraint("Tangent", 37, 1, 38, 1),
    Sketcher.Constraint("Tangent", 38, 2, 39, 2),
    Sketcher.Constraint("Tangent", 39, 1, 34, 1),
    Sketcher.Constraint("Tangent", 40, 2, 41, 1),
    Sketcher.Constraint("Tangent", 41, 2, 42, 1),
    Sketcher.Constraint("Tangent", 42, 2, 43, 2),
    Sketcher.Constraint("Tangent", 43, 1, 44, 1),
    Sketcher.Constraint("Tangent", 44, 2, 45, 2),
    Sketcher.Constraint("Tangent", 45, 1, 40, 1),
    Sketcher.Constraint("Tangent", 46, 2, 47, 1),
    Sketcher.Constraint("Tangent", 47, 2, 48, 2),
    Sketcher.Constraint("Tangent", 48, 1, 49, 1),
    Sketcher.Constraint("Tangent", 49, 2, 50, 2),
    Sketcher.Constraint("Tangent", 50, 1, 51, 1),
    Sketcher.Constraint("Tangent", 51, 2, 46, 1),
    Sketcher.Constraint("Tangent", 52, 2, 53, 1),
    Sketcher.Constraint("Tangent", 53, 2, 54, 1),
    Sketcher.Constraint("Tangent", 54, 2, 55, 2),
    Sketcher.Constraint("Tangent", 55, 1, 56, 1),
    Sketcher.Constraint("Tangent", 56, 2, 57, 2),
    Sketcher.Constraint("Tangent", 57, 1, 52, 1),
    Sketcher.Constraint("Tangent", 58, 2, 59, 1),
    Sketcher.Constraint("Tangent", 59, 2, 60, 2),
    Sketcher.Constraint("Tangent", 60, 1, 61, 1),
    Sketcher.Constraint("Tangent", 61, 2, 62, 2),
    Sketcher.Constraint("Tangent", 62, 1, 63, 1),
    Sketcher.Constraint("Tangent", 63, 2, 58, 1),
    Sketcher.Constraint("Tangent", 64, 2, 65, 1),
    Sketcher.Constraint("Tangent", 65, 2, 66, 1),
    Sketcher.Constraint("Tangent", 66, 2, 67, 2),
    Sketcher.Constraint("Tangent", 67, 1, 68, 1),
    Sketcher.Constraint("Tangent", 68, 2, 69, 2),
    Sketcher.Constraint("Tangent", 69, 1, 64, 1),
    Sketcher.Constraint("Vertical", 0),
    Sketcher.Constraint("Horizontal", 1),
    Sketcher.Constraint("Horizontal", 5),
    Sketcher.Constraint("Horizontal", 8),
    Sketcher.Constraint("Horizontal", 11),
    Sketcher.Constraint("Horizontal", 14),
    Sketcher.Constraint("Horizontal", 17),
    Sketcher.Constraint("Horizontal", 20),
    Sketcher.Constraint("Horizontal", 23),
    Sketcher.Constraint("Horizontal", 26),
    Sketcher.Constraint("Horizontal", 28),
    Sketcher.Constraint("Horizontal", 31),
    Sketcher.Constraint("Horizontal", 35),
    Sketcher.Constraint("Horizontal", 38),
    Sketcher.Constraint("Horizontal", 41),
    Sketcher.Constraint("Horizontal", 44),
    Sketcher.Constraint("Horizontal", 46),
    Sketcher.Constraint("Horizontal", 49),
    Sketcher.Constraint("Horizontal", 53),
    Sketcher.Constraint("Horizontal", 56),
    Sketcher.Constraint("Horizontal", 58),
    Sketcher.Constraint("Horizontal", 61),
    Sketcher.Constraint("Horizontal", 65),
    Sketcher.Constraint("Horizontal", 68),
    Sketcher.Constraint("Coincident", 4, 3, 2, 3),
    Sketcher.Constraint("Coincident", 10, 3, 6, 3),
    Sketcher.Constraint("Coincident", 16, 3, 12, 3),
    Sketcher.Constraint("Coincident", 22, 3, 18, 3),
    Sketcher.Constraint("Coincident", 34, 3, 24, 3),
    Sketcher.Constraint("Coincident", 40, 3, 36, 3),
    Sketcher.Constraint("Coincident", 47, 3, 33, 3),
    Sketcher.Constraint("Coincident", 52, 3, 42, 3),
    Sketcher.Constraint("Coincident", 59, 3, 51, 3),
    Sketcher.Constraint("Coincident", 64, 3, 54, 3),
    Sketcher.Constraint("Coincident", 66, 3, 63, 3),
    Sketcher.Constraint("Equal", 2, 4),
    Sketcher.Constraint("Equal", 4, 6),
    Sketcher.Constraint("Equal", 3, 7),
    Sketcher.Constraint("Equal", 7, 9),
    Sketcher.Constraint("Equal", 6, 10),
    Sketcher.Constraint("Equal", 10, 12),
    Sketcher.Constraint("Equal", 9, 13),
    Sketcher.Constraint("Equal", 13, 15),
    Sketcher.Constraint("Equal", 12, 16),
    Sketcher.Constraint("Equal", 16, 18),
    Sketcher.Constraint("Equal", 15, 19),
    Sketcher.Constraint("Equal", 19, 21),
    Sketcher.Constraint("Equal", 18, 22),
    Sketcher.Constraint("Equal", 22, 24),
    Sketcher.Constraint("Equal", 21, 25),
    Sketcher.Constraint("Equal", 25, 27),
    Sketcher.Constraint("Equal", 24, 29),
    Sketcher.Constraint("Equal", 27, 30),
    Sketcher.Constraint("Equal", 30, 32),
    Sketcher.Constraint("Equal", 29, 33),
    Sketcher.Constraint("Equal", 33, 34),
    Sketcher.Constraint("Equal", 34, 36),
    Sketcher.Constraint("Equal", 32, 37),
    Sketcher.Constraint("Equal", 37, 39),
    Sketcher.Constraint("Equal", 36, 40),
    Sketcher.Constraint("Equal", 40, 42),
    Sketcher.Constraint("Equal", 39, 43),
    Sketcher.Constraint("Equal", 43, 45),
    Sketcher.Constraint("Equal", 42, 47),
    Sketcher.Constraint("Equal", 45, 48),
    Sketcher.Constraint("Equal", 48, 50),
    Sketcher.Constraint("Equal", 47, 51),
    Sketcher.Constraint("Equal", 51, 52),
    Sketcher.Constraint("Equal", 52, 54),
    Sketcher.Constraint("Equal", 50, 55),
    Sketcher.Constraint("Equal", 55, 57),
    Sketcher.Constraint("Equal", 54, 59),
    Sketcher.Constraint("Equal", 57, 60),
    Sketcher.Constraint("Equal", 60, 62),
    Sketcher.Constraint("Equal", 59, 63),
    Sketcher.Constraint("Equal", 63, 64),
    Sketcher.Constraint("Equal", 64, 66),
    Sketcher.Constraint("Equal", 62, 67),
    Sketcher.Constraint("Equal", 67, 69),
    Sketcher.Constraint("PointOnObject", 29, 3, -2),
    Sketcher.Constraint("Horizontal", 3, 3, 7, 3),
    Sketcher.Constraint("Horizontal", 9, 3, 13, 3),
    Sketcher.Constraint("Horizontal", 15, 3, 19, 3),
    Sketcher.Constraint("Horizontal", 21, 3, 25, 3),
    Sketcher.Constraint("Horizontal", 27, 3, 30, 3),
    Sketcher.Constraint("Horizontal", 32, 3, 37, 3),
    Sketcher.Constraint("Horizontal", 39, 3, 43, 3),
    Sketcher.Constraint("Horizontal", 45, 3, 48, 3),
    Sketcher.Constraint("Horizontal", 50, 3, 55, 3),
    Sketcher.Constraint("Horizontal", 57, 3, 60, 3),
    Sketcher.Constraint("Horizontal", 62, 3, 67, 3),
    Sketcher.Constraint("Equal", 5, 11),
    Sketcher.Constraint("Equal", 11, 17),
    Sketcher.Constraint("Equal", 17, 23),
    Sketcher.Constraint("Equal", 23, 28),
    Sketcher.Constraint("Equal", 28, 35),
    Sketcher.Constraint("Equal", 35, 41),
    Sketcher.Constraint("Equal", 41, 46),
    Sketcher.Constraint("Equal", 46, 53),
    Sketcher.Constraint("Equal", 53, 58),
    Sketcher.Constraint("Equal", 58, 65),
    Sketcher.Constraint("DistanceX", 5, 1, 5, 2, Q("3 mm")),
    Sketcher.Constraint("Radius", 2, Q("0.89 mm")),
    Sketcher.Constraint("Radius", 3, Q("0.25 mm")),
    Sketcher.Constraint("DistanceX", 1, 1, 1, 2, Q("1.1 mm")),
    Sketcher.Constraint("DistanceX", 8, 2, 8, 1, Q("0.7256 mm")),
    Sketcher.Constraint("DistanceY", 2, 3, -1, 1, Q("11.737 mm")),
])
pad6 = body.newObject("PartDesign::Pad", "Pad005")
pad6.Profile = sketch8
pad6.Length = 16

doc.recompute()
